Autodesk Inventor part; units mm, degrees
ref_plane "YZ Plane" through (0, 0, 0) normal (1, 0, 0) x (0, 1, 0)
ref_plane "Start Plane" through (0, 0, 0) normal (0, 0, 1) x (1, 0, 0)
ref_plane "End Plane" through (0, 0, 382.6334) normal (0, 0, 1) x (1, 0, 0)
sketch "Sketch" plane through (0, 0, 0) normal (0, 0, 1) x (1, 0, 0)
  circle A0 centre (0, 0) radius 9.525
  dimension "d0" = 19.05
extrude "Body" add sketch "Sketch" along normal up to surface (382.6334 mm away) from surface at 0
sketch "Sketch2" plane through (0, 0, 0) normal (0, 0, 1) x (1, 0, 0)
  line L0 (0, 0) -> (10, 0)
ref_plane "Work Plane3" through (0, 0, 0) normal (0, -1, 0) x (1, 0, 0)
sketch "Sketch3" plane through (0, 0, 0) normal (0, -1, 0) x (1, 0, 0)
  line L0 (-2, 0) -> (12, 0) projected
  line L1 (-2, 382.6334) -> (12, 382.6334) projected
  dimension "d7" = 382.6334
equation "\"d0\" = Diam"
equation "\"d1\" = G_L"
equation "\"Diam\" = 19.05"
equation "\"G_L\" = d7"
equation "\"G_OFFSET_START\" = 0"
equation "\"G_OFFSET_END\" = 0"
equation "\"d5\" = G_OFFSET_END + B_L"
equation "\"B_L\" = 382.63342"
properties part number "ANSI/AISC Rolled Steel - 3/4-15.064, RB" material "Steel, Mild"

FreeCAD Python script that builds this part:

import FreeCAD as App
import Part
import Sketcher
from FreeCAD import Vector
Q = App.Units.Quantity

doc = App.newDocument("Part")
body = doc.addObject("PartDesign::Body", "Body")

sketch1 = body.newObject("Sketcher::SketchObject", "Sketch")
sketch1.AttachmentSupport = (doc.getObject("XY_Plane"), [""])
sketch1.MapMode = "FlatFace"
sketch1.addGeometry(Part.Circle(Vector(0, 0, 0), Vector(0, 0, 1), 10), False)
sketch1.addConstraint(Sketcher.Constraint("Coincident", 0, 3, -1, 1))
sketch1.addConstraint(Sketcher.Constraint("Diameter", 0, Q("0.75 in")))
pad1 = body.newObject("PartDesign::Pad", "Pad")
pad1.Profile = sketch1
pad1.Length = Q("15.0643071 in")

doc.recompute()
